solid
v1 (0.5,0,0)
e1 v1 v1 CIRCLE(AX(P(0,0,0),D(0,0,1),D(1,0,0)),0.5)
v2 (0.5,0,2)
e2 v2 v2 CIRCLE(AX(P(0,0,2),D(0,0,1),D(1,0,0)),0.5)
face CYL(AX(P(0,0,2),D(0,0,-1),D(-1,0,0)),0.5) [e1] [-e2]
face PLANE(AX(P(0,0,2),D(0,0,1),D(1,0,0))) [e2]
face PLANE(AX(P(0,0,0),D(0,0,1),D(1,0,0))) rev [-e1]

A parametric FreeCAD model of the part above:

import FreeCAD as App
import Part
import Sketcher

V = App.Vector
Q = App.Units.Quantity

doc = App.newDocument("Part")
body = doc.addObject("PartDesign::Body", "Body")

sketch1 = doc.addObject("Sketcher::SketchObject", "Sketch")
body.addObject(sketch1)
sketch1.AttachmentSupport = (doc.XY_Plane, [""])
sketch1.MapMode = "FlatFace"
sketch1.addGeometry(Part.Circle(V(0, 0, 0), V(0, 0, 1), 0.5), False)
sketch1.addConstraint([
    Sketcher.Constraint("Coincident", 0, 3, -1, 1),
    Sketcher.Constraint("Diameter", 0, Q("1 mm")),
])
pad1 = doc.addObject("PartDesign::Pad", "Pad")
body.addObject(pad1)
pad1.Profile = sketch1
pad1.Length = 2

doc.recompute()
